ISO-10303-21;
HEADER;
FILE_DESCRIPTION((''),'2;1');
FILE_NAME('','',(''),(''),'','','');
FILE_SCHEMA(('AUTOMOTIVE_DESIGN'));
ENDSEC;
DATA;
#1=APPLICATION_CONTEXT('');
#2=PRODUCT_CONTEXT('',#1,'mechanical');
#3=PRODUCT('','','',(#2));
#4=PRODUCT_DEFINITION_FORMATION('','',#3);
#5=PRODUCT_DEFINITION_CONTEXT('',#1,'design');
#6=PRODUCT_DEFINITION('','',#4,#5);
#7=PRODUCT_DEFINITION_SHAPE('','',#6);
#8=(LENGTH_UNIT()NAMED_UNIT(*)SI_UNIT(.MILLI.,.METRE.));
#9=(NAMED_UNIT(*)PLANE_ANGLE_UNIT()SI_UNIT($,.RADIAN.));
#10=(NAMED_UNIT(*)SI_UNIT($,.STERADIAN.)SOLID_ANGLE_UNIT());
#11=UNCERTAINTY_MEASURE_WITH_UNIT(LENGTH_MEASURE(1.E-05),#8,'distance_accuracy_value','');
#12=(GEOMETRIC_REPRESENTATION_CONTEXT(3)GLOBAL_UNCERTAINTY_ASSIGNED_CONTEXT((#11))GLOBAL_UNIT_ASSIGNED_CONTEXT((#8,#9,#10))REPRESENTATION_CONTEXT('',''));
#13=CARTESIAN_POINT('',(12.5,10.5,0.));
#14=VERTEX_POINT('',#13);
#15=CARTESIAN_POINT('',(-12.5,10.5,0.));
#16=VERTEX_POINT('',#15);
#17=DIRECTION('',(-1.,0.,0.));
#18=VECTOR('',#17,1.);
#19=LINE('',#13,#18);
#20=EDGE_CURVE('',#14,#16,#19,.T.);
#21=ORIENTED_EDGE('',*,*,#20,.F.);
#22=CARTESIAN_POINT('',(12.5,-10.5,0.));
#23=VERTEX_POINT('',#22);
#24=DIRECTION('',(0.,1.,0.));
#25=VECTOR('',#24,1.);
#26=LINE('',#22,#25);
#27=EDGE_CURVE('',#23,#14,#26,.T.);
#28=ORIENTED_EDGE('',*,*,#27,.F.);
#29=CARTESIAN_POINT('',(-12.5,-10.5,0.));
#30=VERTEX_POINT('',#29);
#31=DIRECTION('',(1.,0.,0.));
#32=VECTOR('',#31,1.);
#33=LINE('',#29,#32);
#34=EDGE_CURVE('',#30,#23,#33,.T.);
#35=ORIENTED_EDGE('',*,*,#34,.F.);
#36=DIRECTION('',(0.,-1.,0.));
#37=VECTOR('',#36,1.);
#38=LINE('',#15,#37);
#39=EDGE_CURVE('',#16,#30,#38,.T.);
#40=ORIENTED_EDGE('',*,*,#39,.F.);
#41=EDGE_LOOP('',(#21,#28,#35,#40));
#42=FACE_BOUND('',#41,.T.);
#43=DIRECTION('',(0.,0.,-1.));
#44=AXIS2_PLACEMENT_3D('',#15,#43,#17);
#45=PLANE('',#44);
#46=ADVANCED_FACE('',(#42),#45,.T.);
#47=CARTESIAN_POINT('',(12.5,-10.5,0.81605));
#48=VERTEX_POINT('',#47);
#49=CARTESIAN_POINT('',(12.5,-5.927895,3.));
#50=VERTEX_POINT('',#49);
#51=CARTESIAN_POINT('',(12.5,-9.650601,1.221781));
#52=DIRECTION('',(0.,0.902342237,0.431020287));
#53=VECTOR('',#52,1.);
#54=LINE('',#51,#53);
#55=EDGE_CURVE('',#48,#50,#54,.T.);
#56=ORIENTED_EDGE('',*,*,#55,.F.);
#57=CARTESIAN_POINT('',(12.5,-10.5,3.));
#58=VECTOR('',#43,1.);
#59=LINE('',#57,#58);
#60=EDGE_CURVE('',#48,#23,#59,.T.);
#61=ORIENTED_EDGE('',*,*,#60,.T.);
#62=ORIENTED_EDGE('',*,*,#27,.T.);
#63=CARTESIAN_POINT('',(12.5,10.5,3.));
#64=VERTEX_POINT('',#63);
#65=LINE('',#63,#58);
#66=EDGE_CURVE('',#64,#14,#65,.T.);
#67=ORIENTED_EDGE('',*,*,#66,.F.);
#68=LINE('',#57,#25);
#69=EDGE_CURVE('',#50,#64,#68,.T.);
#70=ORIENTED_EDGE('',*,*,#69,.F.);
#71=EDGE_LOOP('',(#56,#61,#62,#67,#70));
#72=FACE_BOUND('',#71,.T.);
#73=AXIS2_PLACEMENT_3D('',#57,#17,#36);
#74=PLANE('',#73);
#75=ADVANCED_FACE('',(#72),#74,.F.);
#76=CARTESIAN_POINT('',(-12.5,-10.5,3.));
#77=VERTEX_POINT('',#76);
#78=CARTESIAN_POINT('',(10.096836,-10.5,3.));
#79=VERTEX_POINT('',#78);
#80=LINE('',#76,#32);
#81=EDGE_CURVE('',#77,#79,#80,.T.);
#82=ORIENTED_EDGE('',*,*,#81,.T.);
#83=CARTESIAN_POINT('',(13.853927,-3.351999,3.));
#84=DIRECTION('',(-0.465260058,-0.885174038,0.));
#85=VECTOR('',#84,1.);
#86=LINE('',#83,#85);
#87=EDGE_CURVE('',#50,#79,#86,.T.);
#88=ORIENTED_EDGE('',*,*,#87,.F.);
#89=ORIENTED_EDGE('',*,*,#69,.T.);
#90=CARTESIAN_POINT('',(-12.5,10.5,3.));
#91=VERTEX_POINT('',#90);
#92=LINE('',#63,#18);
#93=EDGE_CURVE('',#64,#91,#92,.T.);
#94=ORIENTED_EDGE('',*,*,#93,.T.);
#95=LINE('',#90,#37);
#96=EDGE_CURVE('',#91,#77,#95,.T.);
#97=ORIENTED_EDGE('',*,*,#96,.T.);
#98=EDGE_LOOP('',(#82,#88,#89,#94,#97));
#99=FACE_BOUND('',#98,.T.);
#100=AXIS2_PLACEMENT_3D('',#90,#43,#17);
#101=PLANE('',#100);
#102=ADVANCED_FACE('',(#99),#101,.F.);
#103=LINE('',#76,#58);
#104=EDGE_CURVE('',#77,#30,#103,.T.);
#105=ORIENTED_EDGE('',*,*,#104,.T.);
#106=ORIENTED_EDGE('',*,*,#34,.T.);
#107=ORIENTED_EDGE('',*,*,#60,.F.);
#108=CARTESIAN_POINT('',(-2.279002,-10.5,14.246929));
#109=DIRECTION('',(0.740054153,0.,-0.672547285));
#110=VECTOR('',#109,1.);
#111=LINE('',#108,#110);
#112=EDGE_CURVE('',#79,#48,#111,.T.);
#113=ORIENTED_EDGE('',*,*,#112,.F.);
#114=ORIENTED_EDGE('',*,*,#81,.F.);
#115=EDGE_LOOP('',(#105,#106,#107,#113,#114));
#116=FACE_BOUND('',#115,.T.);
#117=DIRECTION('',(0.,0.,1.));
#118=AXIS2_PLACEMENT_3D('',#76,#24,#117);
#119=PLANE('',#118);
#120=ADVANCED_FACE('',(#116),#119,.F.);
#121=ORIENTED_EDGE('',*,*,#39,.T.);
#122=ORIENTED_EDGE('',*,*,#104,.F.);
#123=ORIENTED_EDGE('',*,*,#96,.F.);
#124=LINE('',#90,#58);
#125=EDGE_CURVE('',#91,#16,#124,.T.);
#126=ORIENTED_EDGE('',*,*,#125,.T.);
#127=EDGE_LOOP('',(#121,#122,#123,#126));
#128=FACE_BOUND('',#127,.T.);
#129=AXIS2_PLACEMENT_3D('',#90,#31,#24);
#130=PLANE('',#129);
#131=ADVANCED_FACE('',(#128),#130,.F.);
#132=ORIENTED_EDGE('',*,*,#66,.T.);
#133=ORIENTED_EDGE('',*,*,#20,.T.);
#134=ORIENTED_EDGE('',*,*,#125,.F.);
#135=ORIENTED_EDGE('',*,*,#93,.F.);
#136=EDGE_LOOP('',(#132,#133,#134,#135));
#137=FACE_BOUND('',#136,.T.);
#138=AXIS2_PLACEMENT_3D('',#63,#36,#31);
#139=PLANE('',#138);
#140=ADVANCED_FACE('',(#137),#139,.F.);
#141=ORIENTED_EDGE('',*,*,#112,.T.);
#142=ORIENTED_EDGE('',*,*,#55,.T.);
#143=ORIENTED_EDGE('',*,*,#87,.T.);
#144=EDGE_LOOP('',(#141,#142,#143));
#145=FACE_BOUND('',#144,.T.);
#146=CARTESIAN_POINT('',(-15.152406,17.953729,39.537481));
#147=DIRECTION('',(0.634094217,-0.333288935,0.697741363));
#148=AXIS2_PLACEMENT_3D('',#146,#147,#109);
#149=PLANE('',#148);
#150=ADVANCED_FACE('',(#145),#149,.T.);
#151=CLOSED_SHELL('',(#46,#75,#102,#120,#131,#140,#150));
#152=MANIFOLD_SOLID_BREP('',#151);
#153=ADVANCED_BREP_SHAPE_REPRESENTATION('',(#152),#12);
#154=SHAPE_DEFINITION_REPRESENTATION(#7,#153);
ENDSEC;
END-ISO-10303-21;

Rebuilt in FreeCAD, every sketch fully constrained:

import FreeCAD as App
import Part
import Sketcher
Q = App.Units.Quantity


def add_polygon(sketch, points):
    """Adds a closed chain of lines whose ends are joined by coincident constraints."""
    first, n = sketch.GeometryCount, len(points)
    for a, b in zip(points, points[1:] + points[:1]):
        sketch.addGeometry(Part.LineSegment(App.Vector(*a, 0), App.Vector(*b, 0)), False)
    for i in range(n):
        sketch.addConstraint(Sketcher.Constraint("Coincident", first + i, 2, first + (i + 1) % n, 1))

doc = App.newDocument("Part")
body = doc.addObject("PartDesign::Body", "Body")

sketch1 = body.newObject("Sketcher::SketchObject", "Sketch")
sketch1.AttachmentSupport = (doc.getObject("XY_Plane"), [""])
sketch1.MapMode = "FlatFace"
add_polygon(sketch1, [(-12, 10), (-12, -10), (12, -10), (12, 10)])
sketch1.addConstraint(Sketcher.Constraint("Vertical", 0))
sketch1.addConstraint(Sketcher.Constraint("Horizontal", 1))
sketch1.addConstraint(Sketcher.Constraint("Vertical", 2))
sketch1.addConstraint(Sketcher.Constraint("Horizontal", 3))
sketch1.addConstraint(Sketcher.Constraint("Symmetric", 0, 2, 2, 2, -1, 1))
sketch1.addConstraint(Sketcher.Constraint("DistanceX", 1, 1, 1, 2, Q("25 mm")))
sketch1.addConstraint(Sketcher.Constraint("DistanceY", 0, 2, 0, 1, Q("21 mm")))
pad1 = body.newObject("PartDesign::Pad", "Pad")
pad1.Profile = sketch1
pad1.Length = 3

sketch2 = body.newObject("Sketcher::SketchObject", "Sketch001")
sketch2.Placement = App.Placement(App.Vector(2.320979, -2.004481, -3.066739), App.Rotation(App.Vector(0.83223631, 0.144886823, 0.535154681), App.Vector(0.144886823, 0.874870471, -0.462179043), App.Vector(-0.535154681, 0.462179043, 0.707106781), "ZXY"))
add_polygon(sketch2, [(41, 45), (11, -5), (8, -9), (-22, -58), (77, -119), (140, -16)])
sketch2.addConstraint(Sketcher.Constraint("Parallel", 0, 1))
sketch2.addConstraint(Sketcher.Constraint("Parallel", 1, 2))
sketch2.addConstraint(Sketcher.Constraint("Perpendicular", 2, 3))
sketch2.addConstraint(Sketcher.Constraint("Perpendicular", 3, 4))
sketch2.addConstraint(Sketcher.Constraint("Perpendicular", 4, 5))
sketch2.addConstraint(Sketcher.Constraint("Equal", 0, 2))
sketch2.addConstraint(Sketcher.Constraint("DistanceY", 3, 2, 5, 2, Q("163.555 mm")))
sketch2.addConstraint(Sketcher.Constraint("Distance", 0, Q("57.892511 mm")))
sketch2.addConstraint(Sketcher.Constraint("Distance", 1, Q("5.098559 mm")))
sketch2.addConstraint(Sketcher.Constraint("Distance", 3, Q("115.785022 mm")))
sketch2.addConstraint(Sketcher.Constraint("DistanceY", 0, 2, -1, 1, Q("4.761592 mm")))
sketch2.addConstraint(Sketcher.Constraint("DistanceX", -1, 1, 3, 2, Q("77.000522 mm")))
pocket1 = body.newObject("PartDesign::Pocket", "Pocket")
pocket1.Profile = sketch2
pocket1.Type = "ThroughAll"
pocket1.Midplane = True

doc.recompute()
